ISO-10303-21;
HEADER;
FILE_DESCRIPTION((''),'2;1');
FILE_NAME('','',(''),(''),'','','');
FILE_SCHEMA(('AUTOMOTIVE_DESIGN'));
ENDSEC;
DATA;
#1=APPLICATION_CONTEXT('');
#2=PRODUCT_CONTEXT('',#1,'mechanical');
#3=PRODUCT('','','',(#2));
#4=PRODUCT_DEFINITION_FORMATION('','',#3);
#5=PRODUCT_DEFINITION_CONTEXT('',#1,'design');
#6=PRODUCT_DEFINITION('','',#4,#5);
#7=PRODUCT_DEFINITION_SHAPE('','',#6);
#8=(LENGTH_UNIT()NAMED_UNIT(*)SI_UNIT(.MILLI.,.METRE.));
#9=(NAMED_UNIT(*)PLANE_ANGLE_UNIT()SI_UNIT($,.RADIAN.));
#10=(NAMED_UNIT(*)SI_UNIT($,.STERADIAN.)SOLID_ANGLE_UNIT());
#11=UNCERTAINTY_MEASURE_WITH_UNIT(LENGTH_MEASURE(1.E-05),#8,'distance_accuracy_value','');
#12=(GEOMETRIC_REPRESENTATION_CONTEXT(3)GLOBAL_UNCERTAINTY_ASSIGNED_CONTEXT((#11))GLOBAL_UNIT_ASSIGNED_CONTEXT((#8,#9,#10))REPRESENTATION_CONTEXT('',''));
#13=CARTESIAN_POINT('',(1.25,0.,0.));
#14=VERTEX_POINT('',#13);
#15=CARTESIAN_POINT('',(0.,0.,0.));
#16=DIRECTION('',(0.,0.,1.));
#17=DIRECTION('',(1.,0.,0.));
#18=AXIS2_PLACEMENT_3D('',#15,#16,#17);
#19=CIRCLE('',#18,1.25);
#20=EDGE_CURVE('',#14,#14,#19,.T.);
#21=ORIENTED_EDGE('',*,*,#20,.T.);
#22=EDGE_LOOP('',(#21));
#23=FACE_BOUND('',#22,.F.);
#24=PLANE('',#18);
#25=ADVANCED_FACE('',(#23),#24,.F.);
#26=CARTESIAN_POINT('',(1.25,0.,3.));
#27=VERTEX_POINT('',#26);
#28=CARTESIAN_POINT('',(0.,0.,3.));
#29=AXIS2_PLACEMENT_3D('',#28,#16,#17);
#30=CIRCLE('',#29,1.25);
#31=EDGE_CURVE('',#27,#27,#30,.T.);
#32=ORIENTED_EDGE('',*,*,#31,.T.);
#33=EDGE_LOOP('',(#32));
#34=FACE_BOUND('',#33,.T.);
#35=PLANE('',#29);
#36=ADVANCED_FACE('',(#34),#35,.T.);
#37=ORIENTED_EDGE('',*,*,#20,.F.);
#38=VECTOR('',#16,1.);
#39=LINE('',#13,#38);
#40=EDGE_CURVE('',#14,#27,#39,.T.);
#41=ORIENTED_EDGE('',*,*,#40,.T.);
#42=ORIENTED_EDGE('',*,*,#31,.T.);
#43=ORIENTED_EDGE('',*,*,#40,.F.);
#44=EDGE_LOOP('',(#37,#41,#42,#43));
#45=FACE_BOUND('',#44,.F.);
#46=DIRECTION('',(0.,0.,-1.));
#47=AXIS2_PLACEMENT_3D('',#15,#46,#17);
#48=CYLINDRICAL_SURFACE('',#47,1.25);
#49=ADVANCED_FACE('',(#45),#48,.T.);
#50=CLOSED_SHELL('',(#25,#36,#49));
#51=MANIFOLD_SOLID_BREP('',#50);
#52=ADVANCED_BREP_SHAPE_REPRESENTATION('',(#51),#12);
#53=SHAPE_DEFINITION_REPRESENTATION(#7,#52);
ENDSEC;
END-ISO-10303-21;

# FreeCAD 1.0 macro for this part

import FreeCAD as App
import Part
import Sketcher

V = App.Vector
Q = App.Units.Quantity

doc = App.newDocument("Part")
body = doc.addObject("PartDesign::Body", "Body")

# Sketch on XY plane
sketch1 = body.newObject("Sketcher::SketchObject", "Sketch")
sketch1.AttachmentSupport = (doc.getObject("XY_Plane"), [""])
sketch1.MapMode = "FlatFace"
sketch1.addGeometry(Part.Circle(V(0, 0, 0), V(0, 0, 1), 1.25), False)
sketch1.addConstraint(Sketcher.Constraint("Coincident", 0, 3, -1, 1))
sketch1.addConstraint(Sketcher.Constraint("Diameter", 0, Q("2.5 mm")))
pad1 = body.newObject("PartDesign::Pad", "Pad")
pad1.Profile = sketch1
pad1.Length = 3

doc.recompute()
